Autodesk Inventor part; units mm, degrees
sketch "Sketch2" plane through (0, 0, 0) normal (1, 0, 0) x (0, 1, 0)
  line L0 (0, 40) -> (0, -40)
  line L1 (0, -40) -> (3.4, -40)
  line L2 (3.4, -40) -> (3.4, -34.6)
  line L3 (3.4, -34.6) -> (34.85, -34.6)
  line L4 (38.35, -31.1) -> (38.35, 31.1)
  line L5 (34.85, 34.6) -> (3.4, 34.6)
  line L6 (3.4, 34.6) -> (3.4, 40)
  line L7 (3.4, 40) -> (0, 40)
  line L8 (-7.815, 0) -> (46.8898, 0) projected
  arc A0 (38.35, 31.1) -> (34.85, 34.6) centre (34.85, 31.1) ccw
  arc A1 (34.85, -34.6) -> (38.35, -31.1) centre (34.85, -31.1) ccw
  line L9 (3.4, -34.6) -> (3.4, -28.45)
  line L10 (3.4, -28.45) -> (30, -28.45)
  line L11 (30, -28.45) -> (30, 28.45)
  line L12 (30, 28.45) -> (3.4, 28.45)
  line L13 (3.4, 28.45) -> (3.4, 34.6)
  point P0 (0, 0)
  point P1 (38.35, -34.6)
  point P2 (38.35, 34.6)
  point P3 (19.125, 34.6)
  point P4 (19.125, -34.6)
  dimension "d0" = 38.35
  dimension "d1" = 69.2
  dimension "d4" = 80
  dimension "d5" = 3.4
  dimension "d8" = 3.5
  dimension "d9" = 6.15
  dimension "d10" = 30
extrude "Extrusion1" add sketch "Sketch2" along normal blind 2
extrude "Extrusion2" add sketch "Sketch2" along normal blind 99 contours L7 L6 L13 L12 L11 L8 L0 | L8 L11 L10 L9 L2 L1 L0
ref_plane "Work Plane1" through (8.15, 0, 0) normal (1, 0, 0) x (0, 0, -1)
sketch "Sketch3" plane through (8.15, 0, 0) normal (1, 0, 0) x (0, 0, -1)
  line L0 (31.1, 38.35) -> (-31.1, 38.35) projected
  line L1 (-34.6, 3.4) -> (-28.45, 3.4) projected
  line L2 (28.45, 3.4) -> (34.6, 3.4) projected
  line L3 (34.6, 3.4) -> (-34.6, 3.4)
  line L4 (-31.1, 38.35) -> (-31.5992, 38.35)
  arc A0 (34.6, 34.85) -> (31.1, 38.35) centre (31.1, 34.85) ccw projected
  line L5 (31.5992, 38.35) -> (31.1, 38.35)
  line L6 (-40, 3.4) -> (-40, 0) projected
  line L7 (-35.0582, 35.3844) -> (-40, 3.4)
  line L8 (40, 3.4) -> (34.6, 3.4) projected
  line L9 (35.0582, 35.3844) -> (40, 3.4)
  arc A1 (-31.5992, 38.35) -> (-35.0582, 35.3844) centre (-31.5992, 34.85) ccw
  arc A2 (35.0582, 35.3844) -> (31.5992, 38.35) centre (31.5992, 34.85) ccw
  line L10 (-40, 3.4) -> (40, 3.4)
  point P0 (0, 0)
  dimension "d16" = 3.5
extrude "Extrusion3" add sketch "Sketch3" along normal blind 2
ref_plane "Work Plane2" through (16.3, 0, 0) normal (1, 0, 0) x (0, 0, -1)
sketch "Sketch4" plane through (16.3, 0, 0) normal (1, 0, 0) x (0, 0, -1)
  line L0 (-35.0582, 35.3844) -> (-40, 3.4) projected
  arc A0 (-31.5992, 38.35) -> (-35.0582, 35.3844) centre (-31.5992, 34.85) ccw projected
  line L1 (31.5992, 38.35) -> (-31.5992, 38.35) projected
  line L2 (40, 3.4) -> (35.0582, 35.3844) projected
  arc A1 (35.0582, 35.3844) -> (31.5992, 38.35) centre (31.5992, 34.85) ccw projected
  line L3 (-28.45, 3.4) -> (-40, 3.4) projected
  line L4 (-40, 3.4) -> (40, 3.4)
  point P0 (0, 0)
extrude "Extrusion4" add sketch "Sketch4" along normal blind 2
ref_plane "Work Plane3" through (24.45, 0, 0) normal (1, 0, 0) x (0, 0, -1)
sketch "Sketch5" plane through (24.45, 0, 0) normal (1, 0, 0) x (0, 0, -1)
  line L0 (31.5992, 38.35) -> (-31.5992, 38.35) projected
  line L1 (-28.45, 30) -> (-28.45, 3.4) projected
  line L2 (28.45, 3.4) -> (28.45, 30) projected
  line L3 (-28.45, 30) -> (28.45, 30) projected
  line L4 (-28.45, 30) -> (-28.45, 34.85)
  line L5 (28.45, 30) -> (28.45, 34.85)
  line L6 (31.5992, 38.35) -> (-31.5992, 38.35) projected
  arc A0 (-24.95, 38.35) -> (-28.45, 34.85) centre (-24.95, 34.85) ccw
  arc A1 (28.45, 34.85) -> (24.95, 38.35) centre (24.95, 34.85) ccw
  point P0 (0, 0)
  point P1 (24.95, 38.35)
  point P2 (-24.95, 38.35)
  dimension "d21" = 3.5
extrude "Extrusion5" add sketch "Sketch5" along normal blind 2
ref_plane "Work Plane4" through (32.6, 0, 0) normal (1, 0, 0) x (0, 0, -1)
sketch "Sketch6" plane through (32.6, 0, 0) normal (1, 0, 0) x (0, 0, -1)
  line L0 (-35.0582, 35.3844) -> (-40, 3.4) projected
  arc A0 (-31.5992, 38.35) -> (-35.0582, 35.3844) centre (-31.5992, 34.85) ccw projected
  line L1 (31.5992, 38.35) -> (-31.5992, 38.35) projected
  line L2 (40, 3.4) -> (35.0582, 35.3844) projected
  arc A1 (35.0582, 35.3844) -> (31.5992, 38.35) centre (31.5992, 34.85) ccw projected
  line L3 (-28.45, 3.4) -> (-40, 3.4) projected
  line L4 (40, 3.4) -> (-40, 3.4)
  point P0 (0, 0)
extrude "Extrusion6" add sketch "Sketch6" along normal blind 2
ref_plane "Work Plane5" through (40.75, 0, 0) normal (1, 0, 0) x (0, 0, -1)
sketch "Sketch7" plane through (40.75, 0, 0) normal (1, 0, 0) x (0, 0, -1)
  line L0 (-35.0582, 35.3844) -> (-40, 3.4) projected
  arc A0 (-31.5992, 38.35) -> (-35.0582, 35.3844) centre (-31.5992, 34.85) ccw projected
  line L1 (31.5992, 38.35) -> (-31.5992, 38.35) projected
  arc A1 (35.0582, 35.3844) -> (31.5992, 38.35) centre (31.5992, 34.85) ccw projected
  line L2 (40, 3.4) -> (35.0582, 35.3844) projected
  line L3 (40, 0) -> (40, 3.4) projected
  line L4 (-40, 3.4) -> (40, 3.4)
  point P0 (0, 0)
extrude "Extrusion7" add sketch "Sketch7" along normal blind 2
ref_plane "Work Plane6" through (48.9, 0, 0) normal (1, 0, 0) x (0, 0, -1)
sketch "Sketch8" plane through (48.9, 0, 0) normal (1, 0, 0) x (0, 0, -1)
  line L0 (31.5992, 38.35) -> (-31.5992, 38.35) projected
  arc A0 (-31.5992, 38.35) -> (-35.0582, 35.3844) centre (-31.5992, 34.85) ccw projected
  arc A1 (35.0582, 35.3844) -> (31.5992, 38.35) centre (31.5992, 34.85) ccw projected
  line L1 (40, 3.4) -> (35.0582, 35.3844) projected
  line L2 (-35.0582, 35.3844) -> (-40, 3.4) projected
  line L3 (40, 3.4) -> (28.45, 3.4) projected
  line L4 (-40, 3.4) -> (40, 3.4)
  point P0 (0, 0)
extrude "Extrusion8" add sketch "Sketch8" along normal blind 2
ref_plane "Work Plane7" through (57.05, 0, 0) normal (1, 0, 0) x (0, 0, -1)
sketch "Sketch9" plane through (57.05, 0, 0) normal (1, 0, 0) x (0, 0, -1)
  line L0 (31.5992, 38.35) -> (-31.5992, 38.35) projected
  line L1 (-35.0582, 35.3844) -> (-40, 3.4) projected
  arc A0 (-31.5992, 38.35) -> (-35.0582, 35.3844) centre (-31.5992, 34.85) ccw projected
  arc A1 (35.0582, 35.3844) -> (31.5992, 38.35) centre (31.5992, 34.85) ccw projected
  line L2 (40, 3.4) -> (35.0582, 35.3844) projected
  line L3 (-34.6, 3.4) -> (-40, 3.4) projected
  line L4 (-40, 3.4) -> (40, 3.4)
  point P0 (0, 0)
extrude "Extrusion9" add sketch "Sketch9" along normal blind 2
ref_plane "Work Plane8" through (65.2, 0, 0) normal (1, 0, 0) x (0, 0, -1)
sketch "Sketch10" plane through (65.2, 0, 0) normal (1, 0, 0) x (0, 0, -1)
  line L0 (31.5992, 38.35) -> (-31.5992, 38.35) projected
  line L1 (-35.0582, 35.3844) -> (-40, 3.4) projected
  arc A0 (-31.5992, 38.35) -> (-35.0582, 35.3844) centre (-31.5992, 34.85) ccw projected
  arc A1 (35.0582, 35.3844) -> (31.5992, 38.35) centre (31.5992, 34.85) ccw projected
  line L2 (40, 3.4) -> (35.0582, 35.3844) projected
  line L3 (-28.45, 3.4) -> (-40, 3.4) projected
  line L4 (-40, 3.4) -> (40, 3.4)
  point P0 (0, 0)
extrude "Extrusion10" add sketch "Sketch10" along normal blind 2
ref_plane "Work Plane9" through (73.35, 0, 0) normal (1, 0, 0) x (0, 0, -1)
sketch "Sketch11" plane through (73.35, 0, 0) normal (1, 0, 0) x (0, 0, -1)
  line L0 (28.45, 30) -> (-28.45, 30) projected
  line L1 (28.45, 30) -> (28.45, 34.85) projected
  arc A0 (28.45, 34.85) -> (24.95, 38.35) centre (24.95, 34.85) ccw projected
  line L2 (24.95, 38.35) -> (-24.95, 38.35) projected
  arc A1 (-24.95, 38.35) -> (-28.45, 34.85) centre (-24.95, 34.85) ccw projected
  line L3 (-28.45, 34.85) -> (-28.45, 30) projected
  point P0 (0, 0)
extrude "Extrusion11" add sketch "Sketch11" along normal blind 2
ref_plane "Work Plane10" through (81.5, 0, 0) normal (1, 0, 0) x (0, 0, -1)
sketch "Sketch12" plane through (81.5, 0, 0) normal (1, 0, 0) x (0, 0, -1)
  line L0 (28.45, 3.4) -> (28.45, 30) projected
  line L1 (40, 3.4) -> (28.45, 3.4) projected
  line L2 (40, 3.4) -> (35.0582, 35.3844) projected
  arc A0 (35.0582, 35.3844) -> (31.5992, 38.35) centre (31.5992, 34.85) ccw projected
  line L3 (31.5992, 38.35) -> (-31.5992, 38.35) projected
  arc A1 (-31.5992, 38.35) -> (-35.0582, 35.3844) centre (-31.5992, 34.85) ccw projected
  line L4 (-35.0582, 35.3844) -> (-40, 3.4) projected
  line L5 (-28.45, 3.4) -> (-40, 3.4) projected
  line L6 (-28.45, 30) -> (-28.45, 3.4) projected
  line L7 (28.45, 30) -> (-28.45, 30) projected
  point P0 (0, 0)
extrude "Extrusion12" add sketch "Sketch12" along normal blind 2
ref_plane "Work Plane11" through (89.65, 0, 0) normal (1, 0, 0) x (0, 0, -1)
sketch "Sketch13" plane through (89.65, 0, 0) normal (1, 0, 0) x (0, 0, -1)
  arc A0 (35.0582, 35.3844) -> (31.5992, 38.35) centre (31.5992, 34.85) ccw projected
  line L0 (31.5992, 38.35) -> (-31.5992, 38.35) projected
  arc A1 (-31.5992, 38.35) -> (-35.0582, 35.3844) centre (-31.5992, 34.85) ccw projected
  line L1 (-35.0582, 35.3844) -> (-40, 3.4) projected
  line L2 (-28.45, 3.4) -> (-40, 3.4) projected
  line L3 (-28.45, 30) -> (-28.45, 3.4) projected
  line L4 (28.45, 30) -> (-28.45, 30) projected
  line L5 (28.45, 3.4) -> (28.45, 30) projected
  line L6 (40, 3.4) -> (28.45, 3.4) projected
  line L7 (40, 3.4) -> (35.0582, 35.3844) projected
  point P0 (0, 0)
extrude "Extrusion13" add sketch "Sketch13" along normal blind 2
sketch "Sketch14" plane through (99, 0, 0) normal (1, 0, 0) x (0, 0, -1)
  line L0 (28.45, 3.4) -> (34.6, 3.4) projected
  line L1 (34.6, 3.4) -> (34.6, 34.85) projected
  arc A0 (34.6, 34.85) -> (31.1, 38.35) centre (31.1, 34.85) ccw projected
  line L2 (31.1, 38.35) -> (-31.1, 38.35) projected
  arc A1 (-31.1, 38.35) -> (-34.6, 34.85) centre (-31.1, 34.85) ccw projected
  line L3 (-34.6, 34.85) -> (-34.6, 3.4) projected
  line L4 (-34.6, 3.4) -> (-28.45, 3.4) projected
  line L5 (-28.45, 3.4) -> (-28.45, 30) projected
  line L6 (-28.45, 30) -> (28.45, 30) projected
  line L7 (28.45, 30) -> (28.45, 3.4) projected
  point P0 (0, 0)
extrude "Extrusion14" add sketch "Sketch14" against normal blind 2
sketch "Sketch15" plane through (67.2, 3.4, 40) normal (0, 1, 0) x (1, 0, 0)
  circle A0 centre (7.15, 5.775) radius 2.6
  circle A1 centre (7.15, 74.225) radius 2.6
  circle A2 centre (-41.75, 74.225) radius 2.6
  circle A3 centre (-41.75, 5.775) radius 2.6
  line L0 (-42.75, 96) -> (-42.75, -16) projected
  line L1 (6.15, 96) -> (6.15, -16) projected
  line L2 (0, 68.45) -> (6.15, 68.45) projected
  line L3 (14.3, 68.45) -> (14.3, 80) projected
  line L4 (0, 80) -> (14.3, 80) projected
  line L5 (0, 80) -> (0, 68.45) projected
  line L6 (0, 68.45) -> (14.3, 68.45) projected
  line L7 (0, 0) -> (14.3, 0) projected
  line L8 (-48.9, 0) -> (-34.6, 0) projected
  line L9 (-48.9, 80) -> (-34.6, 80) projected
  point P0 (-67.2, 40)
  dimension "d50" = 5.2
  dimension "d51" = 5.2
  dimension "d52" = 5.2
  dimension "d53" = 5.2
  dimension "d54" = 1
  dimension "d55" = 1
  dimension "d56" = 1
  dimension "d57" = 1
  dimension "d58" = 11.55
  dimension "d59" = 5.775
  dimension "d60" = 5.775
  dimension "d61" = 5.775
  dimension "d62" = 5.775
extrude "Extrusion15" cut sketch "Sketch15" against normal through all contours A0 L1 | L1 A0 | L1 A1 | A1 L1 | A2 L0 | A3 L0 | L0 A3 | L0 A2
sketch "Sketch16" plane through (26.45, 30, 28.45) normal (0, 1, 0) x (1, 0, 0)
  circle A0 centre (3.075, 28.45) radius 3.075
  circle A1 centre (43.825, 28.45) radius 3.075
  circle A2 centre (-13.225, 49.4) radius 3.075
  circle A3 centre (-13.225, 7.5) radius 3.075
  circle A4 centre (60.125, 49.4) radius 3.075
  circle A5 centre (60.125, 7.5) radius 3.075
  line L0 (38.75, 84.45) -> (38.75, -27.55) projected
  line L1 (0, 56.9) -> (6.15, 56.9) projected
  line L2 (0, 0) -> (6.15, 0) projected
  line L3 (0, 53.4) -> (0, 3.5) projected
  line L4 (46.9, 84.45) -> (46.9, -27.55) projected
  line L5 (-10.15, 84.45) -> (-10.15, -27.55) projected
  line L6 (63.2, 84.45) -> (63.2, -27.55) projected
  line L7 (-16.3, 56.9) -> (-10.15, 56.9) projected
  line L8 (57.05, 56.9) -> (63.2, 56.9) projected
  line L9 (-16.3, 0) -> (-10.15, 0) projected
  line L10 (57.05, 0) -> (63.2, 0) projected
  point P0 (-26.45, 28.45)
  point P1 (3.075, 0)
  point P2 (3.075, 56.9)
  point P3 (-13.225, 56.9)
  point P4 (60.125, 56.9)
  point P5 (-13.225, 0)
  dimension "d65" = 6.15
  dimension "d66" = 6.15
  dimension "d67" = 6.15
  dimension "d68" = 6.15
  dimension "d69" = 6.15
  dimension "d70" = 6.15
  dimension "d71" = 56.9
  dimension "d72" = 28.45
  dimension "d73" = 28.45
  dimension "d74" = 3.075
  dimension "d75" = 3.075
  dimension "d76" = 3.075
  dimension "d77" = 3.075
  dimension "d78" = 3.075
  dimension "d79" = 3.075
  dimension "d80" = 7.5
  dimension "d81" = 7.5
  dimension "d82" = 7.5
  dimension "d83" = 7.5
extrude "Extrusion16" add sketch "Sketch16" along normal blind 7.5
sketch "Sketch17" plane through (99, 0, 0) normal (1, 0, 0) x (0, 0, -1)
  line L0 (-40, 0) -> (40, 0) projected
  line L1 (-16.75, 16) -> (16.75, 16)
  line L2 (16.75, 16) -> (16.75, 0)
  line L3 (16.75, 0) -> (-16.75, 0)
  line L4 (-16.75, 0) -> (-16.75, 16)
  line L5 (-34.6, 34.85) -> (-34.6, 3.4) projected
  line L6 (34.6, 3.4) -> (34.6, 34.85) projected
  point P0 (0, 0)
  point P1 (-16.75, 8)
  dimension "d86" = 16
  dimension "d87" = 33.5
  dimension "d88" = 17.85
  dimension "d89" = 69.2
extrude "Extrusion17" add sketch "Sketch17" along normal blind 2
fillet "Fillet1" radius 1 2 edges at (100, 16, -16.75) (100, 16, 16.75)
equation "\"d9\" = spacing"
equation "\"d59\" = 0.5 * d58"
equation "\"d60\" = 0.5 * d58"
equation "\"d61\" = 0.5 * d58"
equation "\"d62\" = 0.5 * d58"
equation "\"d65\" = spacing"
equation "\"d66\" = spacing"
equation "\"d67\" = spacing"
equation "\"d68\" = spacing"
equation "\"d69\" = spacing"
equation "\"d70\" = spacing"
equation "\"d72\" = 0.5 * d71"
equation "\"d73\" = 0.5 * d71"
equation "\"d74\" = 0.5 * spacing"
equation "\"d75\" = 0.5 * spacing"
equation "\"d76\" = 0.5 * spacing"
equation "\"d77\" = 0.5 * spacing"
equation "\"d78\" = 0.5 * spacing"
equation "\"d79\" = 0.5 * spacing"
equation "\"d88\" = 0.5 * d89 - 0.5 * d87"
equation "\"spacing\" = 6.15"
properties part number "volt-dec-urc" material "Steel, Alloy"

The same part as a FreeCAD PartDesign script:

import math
import FreeCAD as App
import Part
import Sketcher

V = App.Vector
Q = App.Units.Quantity


def edges_at(feature, points):
    """Names of the edges that pass closest to the given points."""
    edges = feature.Shape.Edges
    near = lambda p: min(range(len(edges)), key=lambda i: edges[i].distToShape(Part.Vertex(*p))[0])
    return sorted({f"Edge{near(p) + 1}" for p in points})

doc = App.newDocument("Part")
body = doc.addObject("PartDesign::Body", "Body")

# Sketch on YZ plane
sketch1 = body.newObject("Sketcher::SketchObject", "Sketch")
sketch1.AttachmentSupport = (doc.getObject("YZ_Plane"), [""])
sketch1.MapMode = "FlatFace"
sketch1.addGeometry([
    Part.LineSegment(V(3.4, 40, 0), V(0, 40, 0)),  # 0
    Part.LineSegment(V(0, 40, 0), V(0, -40, 0)),  # 1
    Part.LineSegment(V(0, -40, 0), V(3.4, -40, 0)),  # 2
    Part.LineSegment(V(3.4, -40, 0), V(3.4, -34.6, 0)),  # 3
    Part.LineSegment(V(3.4, -34.6, 0), V(34.9, -34.6, 0)),  # 4
    Part.ArcOfCircle(Part.Circle(V(34.9, -31.1, 0), V(0, 0, 1), 3.5), math.radians(-90), math.radians(0)),  # 5
    Part.LineSegment(V(38.4, -31.1, 0), V(38.4, 31.1, 0)),  # 6
    Part.ArcOfCircle(Part.Circle(V(34.9, 31.1, 0), V(0, 0, 1), 3.5), math.radians(0), math.radians(90)),  # 7
    Part.LineSegment(V(34.9, 34.6, 0), V(3.4, 34.6, 0)),  # 8
    Part.LineSegment(V(3.4, 34.6, 0), V(3.4, 40, 0)),  # 9
], False)
sketch1.addConstraint([
    Sketcher.Constraint("Coincident", 0, 2, 1, 1),
    Sketcher.Constraint("Coincident", 1, 2, 2, 1),
    Sketcher.Constraint("Coincident", 2, 2, 3, 1),
    Sketcher.Constraint("Coincident", 3, 2, 4, 1),
    Sketcher.Constraint("Tangent", 4, 2, 5, 1),
    Sketcher.Constraint("Tangent", 5, 2, 6, 1),
    Sketcher.Constraint("Tangent", 6, 2, 7, 1),
    Sketcher.Constraint("Tangent", 7, 2, 8, 1),
    Sketcher.Constraint("Coincident", 8, 2, 9, 1),
    Sketcher.Constraint("Coincident", 9, 2, 0, 1),
    Sketcher.Constraint("Horizontal", 0),
    Sketcher.Constraint("Vertical", 1),
    Sketcher.Constraint("Horizontal", 2),
    Sketcher.Constraint("Vertical", 3),
    Sketcher.Constraint("Horizontal", 4),
    Sketcher.Constraint("Vertical", 6),
    Sketcher.Constraint("Horizontal", 8),
    Sketcher.Constraint("Vertical", 9),
    Sketcher.Constraint("Equal", 5, 7),
    Sketcher.Constraint("Symmetric", 0, 2, 1, 2, -1, 1),
    Sketcher.Constraint("Symmetric", 3, 2, 8, 2, -1),
    Sketcher.Constraint("Radius", 5, Q("3.5 mm")),
    Sketcher.Constraint("DistanceY", 1, 2, 1, 1, Q("80 mm")),
    Sketcher.Constraint("DistanceX", 0, 2, 0, 1, Q("3.4 mm")),
    Sketcher.Constraint("DistanceY", 3, 2, 8, 2, Q("69.2 mm")),
    Sketcher.Constraint("DistanceX", -1, 1, 5, 2, Q("38.35 mm")),
])
pad1 = body.newObject("PartDesign::Pad", "Pad")
pad1.Profile = sketch1
pad1.Length = 2

# Sketch on YZ plane
sketch2 = body.newObject("Sketcher::SketchObject", "Sketch001")
sketch2.AttachmentSupport = (doc.getObject("YZ_Plane"), [""])
sketch2.MapMode = "FlatFace"
sketch2.addGeometry([
    Part.LineSegment(V(3.4, 40, 0), V(0, 40, 0)),  # 0
    Part.LineSegment(V(0, 40, 0), V(0, -40, 0)),  # 1
    Part.LineSegment(V(0, -40, 0), V(3.4, -40, 0)),  # 2
    Part.LineSegment(V(3.4, -40, 0), V(3.4, -28.4, 0)),  # 3
    Part.LineSegment(V(3.4, -28.4, 0), V(30, -28.4, 0)),  # 4
    Part.LineSegment(V(30, -28.4, 0), V(30, 28.4, 0)),  # 5
    Part.LineSegment(V(30, 28.4, 0), V(3.4, 28.4, 0)),  # 6
    Part.LineSegment(V(3.4, 28.4, 0), V(3.4, 40, 0)),  # 7
], False)
sketch2.addConstraint([
    Sketcher.Constraint("Coincident", 0, 2, 1, 1),
    Sketcher.Constraint("Coincident", 1, 2, 2, 1),
    Sketcher.Constraint("Coincident", 2, 2, 3, 1),
    Sketcher.Constraint("Coincident", 3, 2, 4, 1),
    Sketcher.Constraint("Coincident", 4, 2, 5, 1),
    Sketcher.Constraint("Coincident", 5, 2, 6, 1),
    Sketcher.Constraint("Coincident", 6, 2, 7, 1),
    Sketcher.Constraint("Coincident", 7, 2, 0, 1),
    Sketcher.Constraint("Horizontal", 0),
    Sketcher.Constraint("Vertical", 1),
    Sketcher.Constraint("Horizontal", 2),
    Sketcher.Constraint("Vertical", 3),
    Sketcher.Constraint("Horizontal", 4),
    Sketcher.Constraint("Vertical", 5),
    Sketcher.Constraint("Horizontal", 6),
    Sketcher.Constraint("Vertical", 7),
    Sketcher.Constraint("Symmetric", 0, 2, 1, 2, -1, 1),
    Sketcher.Constraint("Symmetric", 3, 2, 6, 2, -1),
    Sketcher.Constraint("DistanceY", 1, 2, 1, 1, Q("80 mm")),
    Sketcher.Constraint("DistanceX", 0, 2, 0, 1, Q("3.4 mm")),
    Sketcher.Constraint("DistanceX", -1, 1, 4, 2, Q("30 mm")),
    Sketcher.Constraint("DistanceY", 5, 1, 5, 2, Q("56.9 mm")),
])
pad2 = body.newObject("PartDesign::Pad", "Pad001")
pad2.Profile = sketch2
pad2.Length = 99

# Sketch on YZ plane
sketch3 = body.newObject("Sketcher::SketchObject", "Sketch002")
sketch3.AttachmentSupport = (doc.getObject("YZ_Plane"), [""])
sketch3.MapMode = "FlatFace"
sketch3.AttachmentOffset = App.Placement(V(0, 0, 8.15), App.Rotation())
sketch3.addGeometry([
    Part.LineSegment(V(38.4, -31.6, 0), V(38.4, 31.6, 0)),  # 0
    Part.ArcOfCircle(Part.Circle(V(34.9, 31.6, 0), V(0, 0, 1), 3.5), math.radians(0), math.radians(81)),  # 1
    Part.LineSegment(V(35.4, 35.1, 0), V(3.4, 40, 0)),  # 2
    Part.LineSegment(V(3.4, 40, 0), V(3.4, -40, 0)),  # 3
    Part.LineSegment(V(3.4, -40, 0), V(35.4, -35.1, 0)),  # 4
    Part.ArcOfCircle(Part.Circle(V(34.9, -31.6, 0), V(0, 0, 1), 3.5), math.radians(-81), math.radians(0)),  # 5
], False)
sketch3.addConstraint([
    Sketcher.Constraint("Tangent", 0, 2, 1, 1),
    Sketcher.Constraint("Tangent", 1, 2, 2, 1),
    Sketcher.Constraint("Coincident", 2, 2, 3, 1),
    Sketcher.Constraint("Coincident", 3, 2, 4, 1),
    Sketcher.Constraint("Tangent", 4, 2, 5, 1),
    Sketcher.Constraint("Tangent", 5, 2, 0, 1),
    Sketcher.Constraint("Vertical", 0),
    Sketcher.Constraint("Vertical", 3),
    Sketcher.Constraint("Equal", 1, 5),
    Sketcher.Constraint("Symmetric", 1, 2, 4, 2, -1),
    Sketcher.Constraint("Radius", 1, Q("3.5 mm")),
    Sketcher.Constraint("DistanceY", 3, 2, 3, 1, Q("80 mm")),
    Sketcher.Constraint("DistanceX", -1, 1, 2, 2, Q("3.4 mm")),
    Sketcher.Constraint("DistanceX", -1, 1, 1, 3, Q("34.85 mm")),
    Sketcher.Constraint("Distance", 2, Q("32.364 mm")),
])
pad3 = body.newObject("PartDesign::Pad", "Pad002")
pad3.Profile = sketch3
pad3.Length = 2

# Sketch on YZ plane
sketch4 = body.newObject("Sketcher::SketchObject", "Sketch003")
sketch4.AttachmentSupport = (doc.getObject("YZ_Plane"), [""])
sketch4.MapMode = "FlatFace"
sketch4.AttachmentOffset = App.Placement(V(0, 0, 16.3), App.Rotation())
sketch4.addGeometry([
    Part.ArcOfCircle(Part.Circle(V(34.9, 31.6, 0), V(0, 0, 1), 3.5), math.radians(0), math.radians(81)),  # 0
    Part.LineSegment(V(35.4, 35.1, 0), V(3.4, 40, 0)),  # 1
    Part.LineSegment(V(3.4, 40, 0), V(3.4, -40, 0)),  # 2
    Part.LineSegment(V(3.4, -40, 0), V(35.4, -35.1, 0)),  # 3
    Part.ArcOfCircle(Part.Circle(V(34.9, -31.6, 0), V(0, 0, 1), 3.5), math.radians(-81), math.radians(0)),  # 4
    Part.LineSegment(V(38.4, -31.6, 0), V(38.4, 31.6, 0)),  # 5
], False)
sketch4.addConstraint([
    Sketcher.Constraint("Tangent", 0, 2, 1, 1),
    Sketcher.Constraint("Coincident", 1, 2, 2, 1),
    Sketcher.Constraint("Coincident", 2, 2, 3, 1),
    Sketcher.Constraint("Tangent", 3, 2, 4, 1),
    Sketcher.Constraint("Tangent", 4, 2, 5, 1),
    Sketcher.Constraint("Tangent", 5, 2, 0, 1),
    Sketcher.Constraint("Vertical", 2),
    Sketcher.Constraint("Vertical", 5),
    Sketcher.Constraint("Equal", 0, 4),
    Sketcher.Constraint("Symmetric", 0, 2, 3, 2, -1),
    Sketcher.Constraint("Radius", 0, Q("3.5 mm")),
    Sketcher.Constraint("DistanceY", 2, 2, 2, 1, Q("80 mm")),
    Sketcher.Constraint("DistanceX", -1, 1, 1, 2, Q("3.4 mm")),
    Sketcher.Constraint("DistanceX", -1, 1, 0, 3, Q("34.85 mm")),
    Sketcher.Constraint("Distance", 1, Q("32.364 mm")),
])
pad4 = body.newObject("PartDesign::Pad", "Pad003")
pad4.Profile = sketch4
pad4.Length = 2

# Sketch on YZ plane
sketch5 = body.newObject("Sketcher::SketchObject", "Sketch004")
sketch5.AttachmentSupport = (doc.getObject("YZ_Plane"), [""])
sketch5.MapMode = "FlatFace"
sketch5.AttachmentOffset = App.Placement(V(0, 0, 24.45), App.Rotation())
sketch5.addGeometry([
    Part.ArcOfCircle(Part.Circle(V(34.9, -24.9, 0), V(0, 0, 1), 3.5), math.radians(-90), math.radians(0)),  # 0
    Part.LineSegment(V(38.4, -24.9, 0), V(38.4, 24.9, 0)),  # 1
    Part.ArcOfCircle(Part.Circle(V(34.9, 24.9, 0), V(0, 0, 1), 3.5), math.radians(0), math.radians(90)),  # 2
    Part.LineSegment(V(34.9, 28.4, 0), V(30, 28.4, 0)),  # 3
    Part.LineSegment(V(30, 28.4, 0), V(30, -28.4, 0)),  # 4
    Part.LineSegment(V(30, -28.4, 0), V(34.9, -28.4, 0)),  # 5
], False)
sketch5.addConstraint([
    Sketcher.Constraint("Tangent", 0, 2, 1, 1),
    Sketcher.Constraint("Tangent", 1, 2, 2, 1),
    Sketcher.Constraint("Tangent", 2, 2, 3, 1),
    Sketcher.Constraint("Coincident", 3, 2, 4, 1),
    Sketcher.Constraint("Coincident", 4, 2, 5, 1),
    Sketcher.Constraint("Tangent", 5, 2, 0, 1),
    Sketcher.Constraint("Vertical", 1),
    Sketcher.Constraint("Horizontal", 3),
    Sketcher.Constraint("Vertical", 4),
    Sketcher.Constraint("Horizontal", 5),
    Sketcher.Constraint("Equal", 0, 2),
    Sketcher.Constraint("Radius", 0, Q("3.5 mm")),
    Sketcher.Constraint("DistanceY", 1, 1, 1, 2, Q("49.9 mm")),
    Sketcher.Constraint("DistanceX", -1, 1, 3, 2, Q("30 mm")),
    Sketcher.Constraint("DistanceX", 3, 2, 3, 1, Q("4.85 mm")),
    Sketcher.Constraint("DistanceY", 0, 3, -1, 1, Q("24.95 mm")),
])
pad5 = body.newObject("PartDesign::Pad", "Pad004")
pad5.Profile = sketch5
pad5.Length = 2

# Sketch on YZ plane
sketch6 = body.newObject("Sketcher::SketchObject", "Sketch005")
sketch6.AttachmentSupport = (doc.getObject("YZ_Plane"), [""])
sketch6.MapMode = "FlatFace"
sketch6.AttachmentOffset = App.Placement(V(0, 0, 32.6), App.Rotation())
sketch6.addGeometry([
    Part.ArcOfCircle(Part.Circle(V(34.9, 31.6, 0), V(0, 0, 1), 3.5), math.radians(0), math.radians(81)),  # 0
    Part.LineSegment(V(35.4, 35.1, 0), V(3.4, 40, 0)),  # 1
    Part.LineSegment(V(3.4, 40, 0), V(3.4, -40, 0)),  # 2
    Part.LineSegment(V(3.4, -40, 0), V(35.4, -35.1, 0)),  # 3
    Part.ArcOfCircle(Part.Circle(V(34.9, -31.6, 0), V(0, 0, 1), 3.5), math.radians(-81), math.radians(0)),  # 4
    Part.LineSegment(V(38.4, -31.6, 0), V(38.4, 31.6, 0)),  # 5
], False)
sketch6.addConstraint([
    Sketcher.Constraint("Tangent", 0, 2, 1, 1),
    Sketcher.Constraint("Coincident", 1, 2, 2, 1),
    Sketcher.Constraint("Coincident", 2, 2, 3, 1),
    Sketcher.Constraint("Tangent", 3, 2, 4, 1),
    Sketcher.Constraint("Tangent", 4, 2, 5, 1),
    Sketcher.Constraint("Tangent", 5, 2, 0, 1),
    Sketcher.Constraint("Vertical", 2),
    Sketcher.Constraint("Vertical", 5),
    Sketcher.Constraint("Equal", 0, 4),
    Sketcher.Constraint("Symmetric", 0, 2, 3, 2, -1),
    Sketcher.Constraint("Radius", 0, Q("3.5 mm")),
    Sketcher.Constraint("DistanceY", 2, 2, 2, 1, Q("80 mm")),
    Sketcher.Constraint("DistanceX", -1, 1, 1, 2, Q("3.4 mm")),
    Sketcher.Constraint("DistanceX", -1, 1, 0, 3, Q("34.85 mm")),
    Sketcher.Constraint("Distance", 1, Q("32.364 mm")),
])
pad6 = body.newObject("PartDesign::Pad", "Pad005")
pad6.Profile = sketch6
pad6.Length = 2

# Sketch on YZ plane
sketch7 = body.newObject("Sketcher::SketchObject", "Sketch006")
sketch7.AttachmentSupport = (doc.getObject("YZ_Plane"), [""])
sketch7.MapMode = "FlatFace"
sketch7.AttachmentOffset = App.Placement(V(0, 0, 40.75), App.Rotation())
sketch7.addGeometry([
    Part.ArcOfCircle(Part.Circle(V(34.9, 31.6, 0), V(0, 0, 1), 3.5), math.radians(0), math.radians(81)),  # 0
    Part.LineSegment(V(35.4, 35.1, 0), V(3.4, 40, 0)),  # 1
    Part.LineSegment(V(3.4, 40, 0), V(3.4, -40, 0)),  # 2
    Part.LineSegment(V(3.4, -40, 0), V(35.4, -35.1, 0)),  # 3
    Part.ArcOfCircle(Part.Circle(V(34.9, -31.6, 0), V(0, 0, 1), 3.5), math.radians(-81), math.radians(0)),  # 4
    Part.LineSegment(V(38.4, -31.6, 0), V(38.4, 31.6, 0)),  # 5
], False)
sketch7.addConstraint([
    Sketcher.Constraint("Tangent", 0, 2, 1, 1),
    Sketcher.Constraint("Coincident", 1, 2, 2, 1),
    Sketcher.Constraint("Coincident", 2, 2, 3, 1),
    Sketcher.Constraint("Tangent", 3, 2, 4, 1),
    Sketcher.Constraint("Tangent", 4, 2, 5, 1),
    Sketcher.Constraint("Tangent", 5, 2, 0, 1),
    Sketcher.Constraint("Vertical", 2),
    Sketcher.Constraint("Vertical", 5),
    Sketcher.Constraint("Equal", 0, 4),
    Sketcher.Constraint("Symmetric", 0, 2, 3, 2, -1),
    Sketcher.Constraint("Radius", 0, Q("3.5 mm")),
    Sketcher.Constraint("DistanceY", 2, 2, 2, 1, Q("80 mm")),
    Sketcher.Constraint("DistanceX", -1, 1, 1, 2, Q("3.4 mm")),
    Sketcher.Constraint("DistanceX", -1, 1, 0, 3, Q("34.85 mm")),
    Sketcher.Constraint("Distance", 1, Q("32.364 mm")),
])
pad7 = body.newObject("PartDesign::Pad", "Pad006")
pad7.Profile = sketch7
pad7.Length = 2

# Sketch on YZ plane
sketch8 = body.newObject("Sketcher::SketchObject", "Sketch007")
sketch8.AttachmentSupport = (doc.getObject("YZ_Plane"), [""])
sketch8.MapMode = "FlatFace"
sketch8.AttachmentOffset = App.Placement(V(0, 0, 48.9), App.Rotation())
sketch8.addGeometry([
    Part.ArcOfCircle(Part.Circle(V(34.9, -31.6, 0), V(0, 0, 1), 3.5), math.radians(-81), math.radians(0)),  # 0
    Part.LineSegment(V(38.4, -31.6, 0), V(38.4, 31.6, 0)),  # 1
    Part.ArcOfCircle(Part.Circle(V(34.9, 31.6, 0), V(0, 0, 1), 3.5), math.radians(0), math.radians(81)),  # 2
    Part.LineSegment(V(35.4, 35.1, 0), V(3.4, 40, 0)),  # 3
    Part.LineSegment(V(3.4, 40, 0), V(3.4, -40, 0)),  # 4
    Part.LineSegment(V(3.4, -40, 0), V(35.4, -35.1, 0)),  # 5
], False)
sketch8.addConstraint([
    Sketcher.Constraint("Tangent", 0, 2, 1, 1),
    Sketcher.Constraint("Tangent", 1, 2, 2, 1),
    Sketcher.Constraint("Tangent", 2, 2, 3, 1),
    Sketcher.Constraint("Coincident", 3, 2, 4, 1),
    Sketcher.Constraint("Coincident", 4, 2, 5, 1),
    Sketcher.Constraint("Tangent", 5, 2, 0, 1),
    Sketcher.Constraint("Vertical", 1),
    Sketcher.Constraint("Vertical", 4),
    Sketcher.Constraint("Equal", 0, 2),
    Sketcher.Constraint("Symmetric", 2, 2, 5, 2, -1),
    Sketcher.Constraint("Radius", 0, Q("3.5 mm")),
    Sketcher.Constraint("DistanceY", 4, 2, 4, 1, Q("80 mm")),
    Sketcher.Constraint("DistanceX", -1, 1, 3, 2, Q("3.4 mm")),
    Sketcher.Constraint("DistanceX", -1, 1, 0, 3, Q("34.85 mm")),
    Sketcher.Constraint("Distance", 3, Q("32.364 mm")),
])
pad8 = body.newObject("PartDesign::Pad", "Pad007")
pad8.Profile = sketch8
pad8.Length = 2

# Sketch on YZ plane
sketch9 = body.newObject("Sketcher::SketchObject", "Sketch008")
sketch9.AttachmentSupport = (doc.getObject("YZ_Plane"), [""])
sketch9.MapMode = "FlatFace"
sketch9.AttachmentOffset = App.Placement(V(0, 0, 57.05), App.Rotation())
sketch9.addGeometry([
    Part.ArcOfCircle(Part.Circle(V(34.9, -31.6, 0), V(0, 0, 1), 3.5), math.radians(-81), math.radians(0)),  # 0
    Part.LineSegment(V(38.4, -31.6, 0), V(38.4, 31.6, 0)),  # 1
    Part.ArcOfCircle(Part.Circle(V(34.9, 31.6, 0), V(0, 0, 1), 3.5), math.radians(0), math.radians(81)),  # 2
    Part.LineSegment(V(35.4, 35.1, 0), V(3.4, 40, 0)),  # 3
    Part.LineSegment(V(3.4, 40, 0), V(3.4, -40, 0)),  # 4
    Part.LineSegment(V(3.4, -40, 0), V(35.4, -35.1, 0)),  # 5
], False)
sketch9.addConstraint([
    Sketcher.Constraint("Tangent", 0, 2, 1, 1),
    Sketcher.Constraint("Tangent", 1, 2, 2, 1),
    Sketcher.Constraint("Tangent", 2, 2, 3, 1),
    Sketcher.Constraint("Coincident", 3, 2, 4, 1),
    Sketcher.Constraint("Coincident", 4, 2, 5, 1),
    Sketcher.Constraint("Tangent", 5, 2, 0, 1),
    Sketcher.Constraint("Vertical", 1),
    Sketcher.Constraint("Vertical", 4),
    Sketcher.Constraint("Equal", 0, 2),
    Sketcher.Constraint("Symmetric", 2, 2, 5, 2, -1),
    Sketcher.Constraint("Radius", 0, Q("3.5 mm")),
    Sketcher.Constraint("DistanceY", 4, 2, 4, 1, Q("80 mm")),
    Sketcher.Constraint("DistanceX", -1, 1, 3, 2, Q("3.4 mm")),
    Sketcher.Constraint("DistanceX", -1, 1, 0, 3, Q("34.85 mm")),
    Sketcher.Constraint("Distance", 3, Q("32.364 mm")),
])
pad9 = body.newObject("PartDesign::Pad", "Pad008")
pad9.Profile = sketch9
pad9.Length = 2

# Sketch on YZ plane
sketch10 = body.newObject("Sketcher::SketchObject", "Sketch009")
sketch10.AttachmentSupport = (doc.getObject("YZ_Plane"), [""])
sketch10.MapMode = "FlatFace"
sketch10.AttachmentOffset = App.Placement(V(0, 0, 65.2), App.Rotation())
sketch10.addGeometry([
    Part.ArcOfCircle(Part.Circle(V(34.9, -31.6, 0), V(0, 0, 1), 3.5), math.radians(-81), math.radians(0)),  # 0
    Part.LineSegment(V(38.4, -31.6, 0), V(38.4, 31.6, 0)),  # 1
    Part.ArcOfCircle(Part.Circle(V(34.9, 31.6, 0), V(0, 0, 1), 3.5), math.radians(0), math.radians(81)),  # 2
    Part.LineSegment(V(35.4, 35.1, 0), V(3.4, 40, 0)),  # 3
    Part.LineSegment(V(3.4, 40, 0), V(3.4, -40, 0)),  # 4
    Part.LineSegment(V(3.4, -40, 0), V(35.4, -35.1, 0)),  # 5
], False)
sketch10.addConstraint([
    Sketcher.Constraint("Tangent", 0, 2, 1, 1),
    Sketcher.Constraint("Tangent", 1, 2, 2, 1),
    Sketcher.Constraint("Tangent", 2, 2, 3, 1),
    Sketcher.Constraint("Coincident", 3, 2, 4, 1),
    Sketcher.Constraint("Coincident", 4, 2, 5, 1),
    Sketcher.Constraint("Tangent", 5, 2, 0, 1),
    Sketcher.Constraint("Vertical", 1),
    Sketcher.Constraint("Vertical", 4),
    Sketcher.Constraint("Equal", 0, 2),
    Sketcher.Constraint("Symmetric", 2, 2, 5, 2, -1),
    Sketcher.Constraint("Radius", 0, Q("3.5 mm")),
    Sketcher.Constraint("DistanceY", 4, 2, 4, 1, Q("80 mm")),
    Sketcher.Constraint("DistanceX", -1, 1, 3, 2, Q("3.4 mm")),
    Sketcher.Constraint("DistanceX", -1, 1, 0, 3, Q("34.85 mm")),
    Sketcher.Constraint("Distance", 3, Q("32.364 mm")),
])
pad10 = body.newObject("PartDesign::Pad", "Pad009")
pad10.Profile = sketch10
pad10.Length = 2

# Sketch on YZ plane
sketch11 = body.newObject("Sketcher::SketchObject", "Sketch010")
sketch11.AttachmentSupport = (doc.getObject("YZ_Plane"), [""])
sketch11.MapMode = "FlatFace"
sketch11.AttachmentOffset = App.Placement(V(0, 0, 73.35), App.Rotation())
sketch11.addGeometry([
    Part.LineSegment(V(30, 28.4, 0), V(30, -28.4, 0)),  # 0
    Part.LineSegment(V(30, -28.4, 0), V(34.9, -28.4, 0)),  # 1
    Part.ArcOfCircle(Part.Circle(V(34.9, -24.9, 0), V(0, 0, 1), 3.5), math.radians(-90), math.radians(0)),  # 2
    Part.LineSegment(V(38.4, -24.9, 0), V(38.4, 24.9, 0)),  # 3
    Part.ArcOfCircle(Part.Circle(V(34.9, 24.9, 0), V(0, 0, 1), 3.5), math.radians(0), math.radians(90)),  # 4
    Part.LineSegment(V(34.9, 28.4, 0), V(30, 28.4, 0)),  # 5
], False)
sketch11.addConstraint([
    Sketcher.Constraint("Coincident", 0, 2, 1, 1),
    Sketcher.Constraint("Tangent", 1, 2, 2, 1),
    Sketcher.Constraint("Tangent", 2, 2, 3, 1),
    Sketcher.Constraint("Tangent", 3, 2, 4, 1),
    Sketcher.Constraint("Tangent", 4, 2, 5, 1),
    Sketcher.Constraint("Coincident", 5, 2, 0, 1),
    Sketcher.Constraint("Vertical", 0),
    Sketcher.Constraint("Horizontal", 1),
    Sketcher.Constraint("Vertical", 3),
    Sketcher.Constraint("Horizontal", 5),
    Sketcher.Constraint("Equal", 2, 4),
    Sketcher.Constraint("Radius", 2, Q("3.5 mm")),
    Sketcher.Constraint("DistanceY", 0, 2, 0, 1, Q("56.9 mm")),
    Sketcher.Constraint("DistanceX", -1, 1, 0, 2, Q("30 mm")),
    Sketcher.Constraint("DistanceX", 1, 1, 1, 2, Q("4.85 mm")),
    Sketcher.Constraint("DistanceY", 2, 3, -1, 1, Q("24.95 mm")),
])
pad11 = body.newObject("PartDesign::Pad", "Pad010")
pad11.Profile = sketch11
pad11.Length = 2

# Sketch on YZ plane
sketch12 = body.newObject("Sketcher::SketchObject", "Sketch011")
sketch12.AttachmentSupport = (doc.getObject("YZ_Plane"), [""])
sketch12.MapMode = "FlatFace"
sketch12.AttachmentOffset = App.Placement(V(0, 0, 81.5), App.Rotation())
sketch12.addGeometry([
    Part.LineSegment(V(30, -28.4, 0), V(3.4, -28.4, 0)),  # 0
    Part.LineSegment(V(3.4, -28.4, 0), V(3.4, -40, 0)),  # 1
    Part.LineSegment(V(3.4, -40, 0), V(35.4, -35.1, 0)),  # 2
    Part.ArcOfCircle(Part.Circle(V(34.9, -31.6, 0), V(0, 0, 1), 3.5), math.radians(-81), math.radians(0)),  # 3
    Part.LineSegment(V(38.4, -31.6, 0), V(38.4, 31.6, 0)),  # 4
    Part.ArcOfCircle(Part.Circle(V(34.9, 31.6, 0), V(0, 0, 1), 3.5), math.radians(0), math.radians(81)),  # 5
    Part.LineSegment(V(35.4, 35.1, 0), V(3.4, 40, 0)),  # 6
    Part.LineSegment(V(3.4, 40, 0), V(3.4, 28.4, 0)),  # 7
    Part.LineSegment(V(3.4, 28.4, 0), V(30, 28.4, 0)),  # 8
    Part.LineSegment(V(30, 28.4, 0), V(30, -28.4, 0)),  # 9
], False)
sketch12.addConstraint([
    Sketcher.Constraint("Coincident", 0, 2, 1, 1),
    Sketcher.Constraint("Coincident", 1, 2, 2, 1),
    Sketcher.Constraint("Tangent", 2, 2, 3, 1),
    Sketcher.Constraint("Tangent", 3, 2, 4, 1),
    Sketcher.Constraint("Tangent", 4, 2, 5, 1),
    Sketcher.Constraint("Tangent", 5, 2, 6, 1),
    Sketcher.Constraint("Coincident", 6, 2, 7, 1),
    Sketcher.Constraint("Coincident", 7, 2, 8, 1),
    Sketcher.Constraint("Coincident", 8, 2, 9, 1),
    Sketcher.Constraint("Coincident", 9, 2, 0, 1),
    Sketcher.Constraint("Horizontal", 0),
    Sketcher.Constraint("Vertical", 1),
    Sketcher.Constraint("Vertical", 4),
    Sketcher.Constraint("Vertical", 7),
    Sketcher.Constraint("Horizontal", 8),
    Sketcher.Constraint("Vertical", 9),
    Sketcher.Constraint("Equal", 3, 5),
    Sketcher.Constraint("Symmetric", 2, 2, 5, 2, -1),
    Sketcher.Constraint("Symmetric", 0, 2, 7, 2, -1),
    Sketcher.Constraint("Radius", 3, Q("3.5 mm")),
    Sketcher.Constraint("DistanceX", 0, 2, 0, 1, Q("26.6 mm")),
    Sketcher.Constraint("DistanceY", 9, 2, 9, 1, Q("56.9 mm")),
    Sketcher.Constraint("DistanceY", 1, 2, -1, 1, Q("40 mm")),
    Sketcher.Constraint("DistanceX", -1, 1, 8, 2, Q("30 mm")),
    Sketcher.Constraint("DistanceX", -1, 1, 3, 3, Q("34.85 mm")),
    Sketcher.Constraint("Distance", 2, Q("32.364 mm")),
])
pad12 = body.newObject("PartDesign::Pad", "Pad011")
pad12.Profile = sketch12
pad12.Length = 2

# Sketch on YZ plane
sketch13 = body.newObject("Sketcher::SketchObject", "Sketch012")
sketch13.AttachmentSupport = (doc.getObject("YZ_Plane"), [""])
sketch13.MapMode = "FlatFace"
sketch13.AttachmentOffset = App.Placement(V(0, 0, 89.65), App.Rotation())
sketch13.addGeometry([
    Part.LineSegment(V(3.4, -40, 0), V(35.4, -35.1, 0)),  # 0
    Part.ArcOfCircle(Part.Circle(V(34.9, -31.6, 0), V(0, 0, 1), 3.5), math.radians(-81), math.radians(0)),  # 1
    Part.LineSegment(V(38.4, -31.6, 0), V(38.4, 31.6, 0)),  # 2
    Part.ArcOfCircle(Part.Circle(V(34.9, 31.6, 0), V(0, 0, 1), 3.5), math.radians(0), math.radians(81)),  # 3
    Part.LineSegment(V(35.4, 35.1, 0), V(3.4, 40, 0)),  # 4
    Part.LineSegment(V(3.4, 40, 0), V(3.4, 28.4, 0)),  # 5
    Part.LineSegment(V(3.4, 28.4, 0), V(30, 28.4, 0)),  # 6
    Part.LineSegment(V(30, 28.4, 0), V(30, -28.4, 0)),  # 7
    Part.LineSegment(V(30, -28.4, 0), V(3.4, -28.4, 0)),  # 8
    Part.LineSegment(V(3.4, -28.4, 0), V(3.4, -40, 0)),  # 9
], False)
sketch13.addConstraint([
    Sketcher.Constraint("Tangent", 0, 2, 1, 1),
    Sketcher.Constraint("Tangent", 1, 2, 2, 1),
    Sketcher.Constraint("Tangent", 2, 2, 3, 1),
    Sketcher.Constraint("Tangent", 3, 2, 4, 1),
    Sketcher.Constraint("Coincident", 4, 2, 5, 1),
    Sketcher.Constraint("Coincident", 5, 2, 6, 1),
    Sketcher.Constraint("Coincident", 6, 2, 7, 1),
    Sketcher.Constraint("Coincident", 7, 2, 8, 1),
    Sketcher.Constraint("Coincident", 8, 2, 9, 1),
    Sketcher.Constraint("Coincident", 9, 2, 0, 1),
    Sketcher.Constraint("Vertical", 2),
    Sketcher.Constraint("Vertical", 5),
    Sketcher.Constraint("Horizontal", 6),
    Sketcher.Constraint("Vertical", 7),
    Sketcher.Constraint("Horizontal", 8),
    Sketcher.Constraint("Vertical", 9),
    Sketcher.Constraint("Equal", 1, 3),
    Sketcher.Constraint("Symmetric", 0, 2, 3, 2, -1),
    Sketcher.Constraint("Symmetric", 5, 2, 8, 2, -1),
    Sketcher.Constraint("Radius", 1, Q("3.5 mm")),
    Sketcher.Constraint("DistanceX", 6, 1, 6, 2, Q("26.6 mm")),
    Sketcher.Constraint("DistanceY", 7, 2, 7, 1, Q("56.9 mm")),
    Sketcher.Constraint("DistanceY", -1, 1, 4, 2, Q("40 mm")),
    Sketcher.Constraint("DistanceX", -1, 1, 6, 2, Q("30 mm")),
    Sketcher.Constraint("DistanceX", -1, 1, 1, 3, Q("34.85 mm")),
    Sketcher.Constraint("Distance", 0, Q("32.364 mm")),
])
pad13 = body.newObject("PartDesign::Pad", "Pad012")
pad13.Profile = sketch13
pad13.Length = 2

# Sketch on YZ plane
sketch14 = body.newObject("Sketcher::SketchObject", "Sketch013")
sketch14.AttachmentSupport = (doc.getObject("YZ_Plane"), [""])
sketch14.MapMode = "FlatFace"
sketch14.AttachmentOffset = App.Placement(V(0, 0, 99), App.Rotation())
sketch14.addGeometry([
    Part.LineSegment(V(30, -28.4, 0), V(3.4, -28.4, 0)),  # 0
    Part.LineSegment(V(3.4, -28.4, 0), V(3.4, -34.6, 0)),  # 1
    Part.LineSegment(V(3.4, -34.6, 0), V(34.9, -34.6, 0)),  # 2
    Part.ArcOfCircle(Part.Circle(V(34.9, -31.1, 0), V(0, 0, 1), 3.5), math.radians(-90), math.radians(0)),  # 3
    Part.LineSegment(V(38.4, -31.1, 0), V(38.4, 31.1, 0)),  # 4
    Part.ArcOfCircle(Part.Circle(V(34.9, 31.1, 0), V(0, 0, 1), 3.5), math.radians(0), math.radians(90)),  # 5
    Part.LineSegment(V(34.9, 34.6, 0), V(3.4, 34.6, 0)),  # 6
    Part.LineSegment(V(3.4, 34.6, 0), V(3.4, 28.4, 0)),  # 7
    Part.LineSegment(V(3.4, 28.4, 0), V(30, 28.4, 0)),  # 8
    Part.LineSegment(V(30, 28.4, 0), V(30, -28.4, 0)),  # 9
], False)
sketch14.addConstraint([
    Sketcher.Constraint("Coincident", 0, 2, 1, 1),
    Sketcher.Constraint("Coincident", 1, 2, 2, 1),
    Sketcher.Constraint("Tangent", 2, 2, 3, 1),
    Sketcher.Constraint("Tangent", 3, 2, 4, 1),
    Sketcher.Constraint("Tangent", 4, 2, 5, 1),
    Sketcher.Constraint("Tangent", 5, 2, 6, 1),
    Sketcher.Constraint("Coincident", 6, 2, 7, 1),
    Sketcher.Constraint("Coincident", 7, 2, 8, 1),
    Sketcher.Constraint("Coincident", 8, 2, 9, 1),
    Sketcher.Constraint("Coincident", 9, 2, 0, 1),
    Sketcher.Constraint("Horizontal", 0),
    Sketcher.Constraint("Vertical", 1),
    Sketcher.Constraint("Horizontal", 2),
    Sketcher.Constraint("Vertical", 4),
    Sketcher.Constraint("Horizontal", 6),
    Sketcher.Constraint("Vertical", 7),
    Sketcher.Constraint("Horizontal", 8),
    Sketcher.Constraint("Vertical", 9),
    Sketcher.Constraint("Equal", 3, 5),
    Sketcher.Constraint("Symmetric", 1, 2, 6, 2, -1),
    Sketcher.Constraint("Equal", 1, 7),
    Sketcher.Constraint("Radius", 3, Q("3.5 mm")),
    Sketcher.Constraint("DistanceX", 0, 2, 0, 1, Q("26.6 mm")),
    Sketcher.Constraint("DistanceY", 4, 1, 4, 2, Q("62.2 mm")),
    Sketcher.Constraint("DistanceY", 9, 2, 9, 1, Q("56.9 mm")),
    Sketcher.Constraint("DistanceX", -1, 1, 8, 2, Q("30 mm")),
    Sketcher.Constraint("DistanceX", 2, 1, 2, 2, Q("31.45 mm")),
])
pad14 = body.newObject("PartDesign::Pad", "Pad013")
pad14.Profile = sketch14
pad14.Length = 2
pad14.Reversed = True

# Sketch on XZ plane
sketch15 = body.newObject("Sketcher::SketchObject", "Sketch014")
sketch15.AttachmentSupport = (doc.getObject("XZ_Plane"), [""])
sketch15.MapMode = "FlatFace"
sketch15.AttachmentOffset = App.Placement(V(0, 0, -3.4), App.Rotation())
sketch15.addGeometry([
    Part.Circle(V(74.3, 34.2, 0), V(0, 0, 1), 2.6),
    Part.Circle(V(74.3, -34.2, 0), V(0, 0, 1), 2.6),
    Part.Circle(V(25.4, -34.2, 0), V(0, 0, 1), 2.6),
    Part.Circle(V(25.4, 34.2, 0), V(0, 0, 1), 2.6),
], False)
sketch15.addConstraint([
    Sketcher.Constraint("Equal", 0, 1),
    Sketcher.Constraint("Equal", 1, 2),
    Sketcher.Constraint("Equal", 2, 3),
    Sketcher.Constraint("Symmetric", 0, 3, 1, 3, -1),
    Sketcher.Constraint("Symmetric", 2, 3, 3, 3, -1),
    Sketcher.Constraint("Horizontal", 1, 3, 2, 3),
    Sketcher.Constraint("Diameter", 0, Q("5.2 mm")),
    Sketcher.Constraint("DistanceX", 2, 3, 1, 3, Q("48.9 mm")),
    Sketcher.Constraint("DistanceX", -1, 1, 0, 3, Q("74.35 mm")),
    Sketcher.Constraint("DistanceY", 1, 3, 0, 3, Q("68.45 mm")),
])
pocket1 = body.newObject("PartDesign::Pocket", "Pocket")
pocket1.Profile = sketch15
pocket1.Type = "ThroughAll"
pocket1.Reversed = True

# Sketch on XZ plane
sketch16 = body.newObject("Sketcher::SketchObject", "Sketch015")
sketch16.AttachmentSupport = (doc.getObject("XZ_Plane"), [""])
sketch16.MapMode = "FlatFace"
sketch16.AttachmentOffset = App.Placement(V(0, 0, -30), App.Rotation())
sketch16.addGeometry([
    Part.Circle(V(29.5, 0, 0), V(0, 0, 1), 3.1),  # 0
    Part.Circle(V(70.3, 0, 0), V(0, 0, 1), 3.1),  # 1
    Part.Circle(V(13.2, -20.9, 0), V(0, 0, 1), 3.1),  # 2
    Part.Circle(V(13.2, 20.9, 0), V(0, 0, 1), 3.1),  # 3
    Part.Circle(V(86.6, -20.9, 0), V(0, 0, 1), 3.1),  # 4
    Part.Circle(V(86.6, 20.9, 0), V(0, 0, 1), 3.1),  # 5
], False)
sketch16.addConstraint([
    Sketcher.Constraint("Equal", 0, 1),
    Sketcher.Constraint("Equal", 1, 2),
    Sketcher.Constraint("Equal", 2, 3),
    Sketcher.Constraint("Equal", 3, 4),
    Sketcher.Constraint("Equal", 4, 5),
    Sketcher.Constraint("Symmetric", 2, 3, 3, 3, -1),
    Sketcher.Constraint("Symmetric", 4, 3, 5, 3, -1),
    Sketcher.Constraint("PointOnObject", 0, 3, -1),
    Sketcher.Constraint("PointOnObject", 1, 3, -1),
    Sketcher.Constraint("Horizontal", 2, 3, 4, 3),
    Sketcher.Constraint("Diameter", 0, Q("6.15 mm")),
    Sketcher.Constraint("DistanceX", 2, 3, 0, 3, Q("16.3 mm")),
    Sketcher.Constraint("DistanceY", 2, 3, 3, 3, Q("41.9 mm")),
    Sketcher.Constraint("DistanceX", 1, 3, 4, 3, Q("16.3 mm")),
    Sketcher.Constraint("DistanceX", 0, 3, 1, 3, Q("40.75 mm")),
    Sketcher.Constraint("DistanceX", -1, 1, 0, 3, Q("29.525 mm")),
])
pad15 = body.newObject("PartDesign::Pad", "Pad014")
pad15.Profile = sketch16
pad15.Length = 7.5
pad15.Reversed = True

# Sketch on YZ plane
sketch17 = body.newObject("Sketcher::SketchObject", "Sketch016")
sketch17.AttachmentSupport = (doc.getObject("YZ_Plane"), [""])
sketch17.MapMode = "FlatFace"
sketch17.AttachmentOffset = App.Placement(V(0, 0, 99), App.Rotation())
sketch17.addGeometry([
    Part.LineSegment(V(16, 17, 0), V(0, 17, 0)),
    Part.LineSegment(V(0, 17, 0), V(0, -17, 0)),
    Part.LineSegment(V(0, -17, 0), V(16, -17, 0)),
    Part.LineSegment(V(16, -17, 0), V(16, 17, 0)),
], False)
sketch17.addConstraint([
    Sketcher.Constraint("Coincident", 0, 2, 1, 1),
    Sketcher.Constraint("Coincident", 1, 2, 2, 1),
    Sketcher.Constraint("Coincident", 2, 2, 3, 1),
    Sketcher.Constraint("Coincident", 3, 2, 0, 1),
    Sketcher.Constraint("Horizontal", 0),
    Sketcher.Constraint("Vertical", 1),
    Sketcher.Constraint("Horizontal", 2),
    Sketcher.Constraint("Vertical", 3),
    Sketcher.Constraint("Symmetric", 0, 2, 1, 2, -1, 1),
    Sketcher.Constraint("DistanceX", 0, 2, 0, 1, Q("16 mm")),
    Sketcher.Constraint("DistanceY", 1, 2, 1, 1, Q("33.5 mm")),
])
pad16 = body.newObject("PartDesign::Pad", "Pad015")
pad16.Profile = sketch17
pad16.Length = 2
doc.recompute()

fillet = body.newObject("PartDesign::Fillet", "Fillet")
fillet.Base = (pad16, edges_at(pad16, [(100, 16, -16.75), (100, 16, 16.75)]))
fillet.Radius = 1

doc.recompute()
